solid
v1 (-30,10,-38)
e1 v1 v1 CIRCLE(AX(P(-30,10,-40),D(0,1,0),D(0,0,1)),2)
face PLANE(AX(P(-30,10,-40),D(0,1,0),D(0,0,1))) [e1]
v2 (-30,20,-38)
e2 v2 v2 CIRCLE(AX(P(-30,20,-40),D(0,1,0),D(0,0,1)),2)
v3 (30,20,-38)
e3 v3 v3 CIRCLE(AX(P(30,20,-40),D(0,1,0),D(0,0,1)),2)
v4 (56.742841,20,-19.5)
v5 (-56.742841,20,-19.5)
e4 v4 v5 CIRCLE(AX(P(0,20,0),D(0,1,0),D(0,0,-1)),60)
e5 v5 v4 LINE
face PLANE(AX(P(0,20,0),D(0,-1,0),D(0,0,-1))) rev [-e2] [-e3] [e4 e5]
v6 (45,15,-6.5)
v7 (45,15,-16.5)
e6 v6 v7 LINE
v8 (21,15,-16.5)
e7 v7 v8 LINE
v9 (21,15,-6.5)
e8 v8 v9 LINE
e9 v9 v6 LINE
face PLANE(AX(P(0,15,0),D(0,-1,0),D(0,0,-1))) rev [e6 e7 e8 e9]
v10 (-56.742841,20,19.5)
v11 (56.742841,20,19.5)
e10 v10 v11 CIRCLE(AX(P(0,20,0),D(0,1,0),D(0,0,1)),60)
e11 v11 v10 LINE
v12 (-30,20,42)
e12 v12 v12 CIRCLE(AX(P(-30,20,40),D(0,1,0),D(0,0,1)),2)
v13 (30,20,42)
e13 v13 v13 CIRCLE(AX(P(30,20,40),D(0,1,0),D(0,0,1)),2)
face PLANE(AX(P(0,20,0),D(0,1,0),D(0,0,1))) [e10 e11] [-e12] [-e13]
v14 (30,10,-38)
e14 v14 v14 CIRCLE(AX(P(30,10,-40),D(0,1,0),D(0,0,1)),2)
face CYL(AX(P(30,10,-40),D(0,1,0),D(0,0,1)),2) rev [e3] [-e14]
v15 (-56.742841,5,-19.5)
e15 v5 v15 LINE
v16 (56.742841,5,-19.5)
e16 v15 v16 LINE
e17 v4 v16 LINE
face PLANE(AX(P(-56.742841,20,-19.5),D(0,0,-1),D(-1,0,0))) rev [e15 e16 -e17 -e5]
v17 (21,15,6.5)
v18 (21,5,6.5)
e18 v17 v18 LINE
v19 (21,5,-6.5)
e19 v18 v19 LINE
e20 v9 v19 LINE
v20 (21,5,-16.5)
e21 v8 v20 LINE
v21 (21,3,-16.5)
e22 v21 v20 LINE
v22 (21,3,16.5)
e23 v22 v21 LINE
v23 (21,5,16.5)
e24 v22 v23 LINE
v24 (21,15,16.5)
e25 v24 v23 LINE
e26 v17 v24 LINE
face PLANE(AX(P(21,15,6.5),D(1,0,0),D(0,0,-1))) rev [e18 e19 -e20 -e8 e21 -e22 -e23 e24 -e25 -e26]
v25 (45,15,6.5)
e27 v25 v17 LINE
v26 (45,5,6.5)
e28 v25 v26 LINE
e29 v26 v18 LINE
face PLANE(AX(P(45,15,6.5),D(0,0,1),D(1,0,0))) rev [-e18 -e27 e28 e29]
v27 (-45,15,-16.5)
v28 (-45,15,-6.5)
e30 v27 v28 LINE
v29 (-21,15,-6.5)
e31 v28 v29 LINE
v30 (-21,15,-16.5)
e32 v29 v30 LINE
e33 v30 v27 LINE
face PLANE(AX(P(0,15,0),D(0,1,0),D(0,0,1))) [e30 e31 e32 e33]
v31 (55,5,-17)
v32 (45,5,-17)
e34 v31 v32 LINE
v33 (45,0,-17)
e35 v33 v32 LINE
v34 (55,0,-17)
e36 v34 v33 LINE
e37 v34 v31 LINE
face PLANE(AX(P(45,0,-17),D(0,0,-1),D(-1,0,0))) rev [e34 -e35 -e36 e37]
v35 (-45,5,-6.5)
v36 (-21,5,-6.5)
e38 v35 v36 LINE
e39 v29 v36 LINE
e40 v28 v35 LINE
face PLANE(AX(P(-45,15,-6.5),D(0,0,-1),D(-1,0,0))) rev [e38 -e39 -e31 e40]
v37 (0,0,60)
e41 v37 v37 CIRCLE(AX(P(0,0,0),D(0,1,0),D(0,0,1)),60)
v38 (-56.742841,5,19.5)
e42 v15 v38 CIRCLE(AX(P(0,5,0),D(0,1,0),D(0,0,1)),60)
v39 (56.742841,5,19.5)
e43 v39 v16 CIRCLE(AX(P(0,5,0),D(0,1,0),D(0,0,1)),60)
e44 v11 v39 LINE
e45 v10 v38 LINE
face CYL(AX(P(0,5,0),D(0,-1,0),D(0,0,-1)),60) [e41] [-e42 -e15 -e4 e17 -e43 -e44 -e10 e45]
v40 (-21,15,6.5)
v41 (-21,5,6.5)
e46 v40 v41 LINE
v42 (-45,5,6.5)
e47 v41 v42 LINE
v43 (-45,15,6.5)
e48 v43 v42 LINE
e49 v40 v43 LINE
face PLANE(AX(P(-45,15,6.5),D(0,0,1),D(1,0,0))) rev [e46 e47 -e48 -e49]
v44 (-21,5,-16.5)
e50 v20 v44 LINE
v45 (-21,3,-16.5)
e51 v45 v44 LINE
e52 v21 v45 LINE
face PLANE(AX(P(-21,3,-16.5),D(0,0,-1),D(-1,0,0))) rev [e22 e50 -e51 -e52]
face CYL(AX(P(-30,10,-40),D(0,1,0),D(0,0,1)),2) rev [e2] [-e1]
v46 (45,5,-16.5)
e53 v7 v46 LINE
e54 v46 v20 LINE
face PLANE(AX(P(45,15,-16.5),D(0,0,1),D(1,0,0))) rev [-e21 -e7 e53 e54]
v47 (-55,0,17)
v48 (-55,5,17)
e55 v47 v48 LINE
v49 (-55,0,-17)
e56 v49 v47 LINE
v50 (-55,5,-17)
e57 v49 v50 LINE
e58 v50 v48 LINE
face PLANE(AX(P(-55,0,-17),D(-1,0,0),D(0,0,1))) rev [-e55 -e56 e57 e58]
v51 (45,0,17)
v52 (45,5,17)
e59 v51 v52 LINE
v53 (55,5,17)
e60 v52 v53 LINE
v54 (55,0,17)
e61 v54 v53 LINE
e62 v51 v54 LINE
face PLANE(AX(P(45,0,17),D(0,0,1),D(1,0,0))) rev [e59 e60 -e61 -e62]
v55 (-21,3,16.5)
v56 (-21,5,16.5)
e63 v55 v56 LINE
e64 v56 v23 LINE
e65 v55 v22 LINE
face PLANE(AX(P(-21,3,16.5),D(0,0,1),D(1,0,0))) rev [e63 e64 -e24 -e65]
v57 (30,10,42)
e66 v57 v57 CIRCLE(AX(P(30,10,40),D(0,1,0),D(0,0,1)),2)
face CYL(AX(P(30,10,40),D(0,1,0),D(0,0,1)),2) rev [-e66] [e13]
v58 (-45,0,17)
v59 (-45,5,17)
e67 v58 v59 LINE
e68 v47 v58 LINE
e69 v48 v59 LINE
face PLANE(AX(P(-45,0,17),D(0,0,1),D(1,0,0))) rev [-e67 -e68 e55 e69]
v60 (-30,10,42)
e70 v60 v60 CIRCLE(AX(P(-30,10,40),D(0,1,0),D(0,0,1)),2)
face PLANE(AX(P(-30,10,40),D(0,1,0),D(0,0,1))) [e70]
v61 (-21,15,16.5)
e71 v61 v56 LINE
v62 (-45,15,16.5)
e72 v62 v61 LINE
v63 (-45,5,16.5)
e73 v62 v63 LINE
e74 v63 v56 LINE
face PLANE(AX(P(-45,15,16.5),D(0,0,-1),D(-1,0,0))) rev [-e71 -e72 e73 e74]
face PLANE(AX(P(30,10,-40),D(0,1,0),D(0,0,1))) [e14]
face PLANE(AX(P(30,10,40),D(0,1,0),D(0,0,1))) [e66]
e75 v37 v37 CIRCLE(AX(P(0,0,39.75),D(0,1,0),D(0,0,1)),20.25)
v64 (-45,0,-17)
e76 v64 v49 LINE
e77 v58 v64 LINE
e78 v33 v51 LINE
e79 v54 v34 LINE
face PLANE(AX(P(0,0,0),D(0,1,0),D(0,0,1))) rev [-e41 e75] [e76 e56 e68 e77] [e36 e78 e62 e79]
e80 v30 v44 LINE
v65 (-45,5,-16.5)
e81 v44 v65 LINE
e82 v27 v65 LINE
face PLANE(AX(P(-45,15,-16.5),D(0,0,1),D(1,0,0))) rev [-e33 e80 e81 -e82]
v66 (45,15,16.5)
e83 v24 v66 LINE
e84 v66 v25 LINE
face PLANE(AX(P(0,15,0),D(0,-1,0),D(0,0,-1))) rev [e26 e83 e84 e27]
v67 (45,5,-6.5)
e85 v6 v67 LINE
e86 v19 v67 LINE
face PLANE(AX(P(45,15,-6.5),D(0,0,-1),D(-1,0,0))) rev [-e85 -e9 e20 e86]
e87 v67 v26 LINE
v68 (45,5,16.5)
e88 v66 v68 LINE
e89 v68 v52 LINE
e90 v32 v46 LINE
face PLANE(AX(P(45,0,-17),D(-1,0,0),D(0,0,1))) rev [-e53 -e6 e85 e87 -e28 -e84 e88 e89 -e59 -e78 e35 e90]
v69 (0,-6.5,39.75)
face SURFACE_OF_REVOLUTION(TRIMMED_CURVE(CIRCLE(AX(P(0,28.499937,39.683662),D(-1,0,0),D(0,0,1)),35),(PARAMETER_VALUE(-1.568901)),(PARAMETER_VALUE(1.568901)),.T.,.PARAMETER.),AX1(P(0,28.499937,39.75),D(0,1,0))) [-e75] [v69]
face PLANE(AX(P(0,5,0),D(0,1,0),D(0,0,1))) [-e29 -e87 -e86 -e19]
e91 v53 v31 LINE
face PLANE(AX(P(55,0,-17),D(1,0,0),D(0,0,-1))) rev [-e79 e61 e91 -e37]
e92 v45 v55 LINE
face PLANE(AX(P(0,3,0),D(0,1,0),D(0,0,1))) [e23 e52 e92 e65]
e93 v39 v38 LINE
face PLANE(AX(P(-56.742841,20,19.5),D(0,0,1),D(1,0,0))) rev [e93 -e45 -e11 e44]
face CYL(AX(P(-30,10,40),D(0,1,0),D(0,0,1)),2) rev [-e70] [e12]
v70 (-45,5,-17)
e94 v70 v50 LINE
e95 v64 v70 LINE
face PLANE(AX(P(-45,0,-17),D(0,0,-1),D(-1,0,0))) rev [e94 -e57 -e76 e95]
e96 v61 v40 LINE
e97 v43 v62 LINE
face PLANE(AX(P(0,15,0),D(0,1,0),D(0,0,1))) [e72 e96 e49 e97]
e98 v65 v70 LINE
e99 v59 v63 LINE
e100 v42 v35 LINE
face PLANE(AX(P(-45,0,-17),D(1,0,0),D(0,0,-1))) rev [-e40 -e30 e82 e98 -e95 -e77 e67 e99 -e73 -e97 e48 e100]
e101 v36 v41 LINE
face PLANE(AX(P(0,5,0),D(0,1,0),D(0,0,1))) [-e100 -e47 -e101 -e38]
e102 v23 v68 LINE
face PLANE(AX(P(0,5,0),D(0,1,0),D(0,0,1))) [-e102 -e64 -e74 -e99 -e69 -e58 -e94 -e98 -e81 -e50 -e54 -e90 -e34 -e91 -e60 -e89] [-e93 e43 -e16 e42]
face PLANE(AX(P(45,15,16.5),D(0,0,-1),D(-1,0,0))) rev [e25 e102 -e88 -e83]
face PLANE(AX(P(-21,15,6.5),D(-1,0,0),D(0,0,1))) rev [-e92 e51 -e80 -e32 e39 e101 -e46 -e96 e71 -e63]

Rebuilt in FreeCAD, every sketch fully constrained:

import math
import FreeCAD as App
import Part
import Sketcher

doc = App.newDocument("Part")
body = doc.addObject("PartDesign::Body", "Body")

# Sketch on XZ plane
sketch1 = body.newObject("Sketcher::SketchObject", "Sketch")
sketch1.AttachmentSupport = (doc.getObject("XZ_Plane"), [""])
sketch1.MapMode = "FlatFace"
sketch1.addGeometry(Part.Circle(App.Vector(0, 0, 0), App.Vector(0, 0, 1), 60), False)
sketch1.addConstraint(Sketcher.Constraint("Coincident", 0, 3, -1, 1))
sketch1.addConstraint(Sketcher.Constraint("Diameter", 0, 120.0))
pad1 = body.newObject("PartDesign::Pad", "Pad")
pad1.Profile = sketch1
pad1.Length = 5
pad1.Reversed = True

# Sketch on XZ plane
sketch2 = body.newObject("Sketcher::SketchObject", "Sketch001")
sketch2.AttachmentSupport = (doc.getObject("XZ_Plane"), [""])
sketch2.MapMode = "FlatFace"
sketch2.AttachmentOffset = App.Placement(App.Vector(0, 0, -5), App.Rotation())
sketch2.addGeometry(Part.LineSegment(App.Vector(-55, -17, 0), App.Vector(-55, 17, 0)), False)
sketch2.addGeometry(Part.LineSegment(App.Vector(-55, 17, 0), App.Vector(-45, 17, 0)), False)
sketch2.addGeometry(Part.LineSegment(App.Vector(-45, 17, 0), App.Vector(-45, -17, 0)), False)
sketch2.addGeometry(Part.LineSegment(App.Vector(-45, -17, 0), App.Vector(-55, -17, 0)), False)
sketch2.addGeometry(Part.LineSegment(App.Vector(45, -17, 0), App.Vector(45, 17, 0)), False)
sketch2.addGeometry(Part.LineSegment(App.Vector(45, 17, 0), App.Vector(55, 17, 0)), False)
sketch2.addGeometry(Part.LineSegment(App.Vector(55, 17, 0), App.Vector(55, -17, 0)), False)
sketch2.addGeometry(Part.LineSegment(App.Vector(55, -17, 0), App.Vector(45, -17, 0)), False)
sketch2.addConstraint(Sketcher.Constraint("Coincident", 0, 2, 1, 1))
sketch2.addConstraint(Sketcher.Constraint("Coincident", 1, 2, 2, 1))
sketch2.addConstraint(Sketcher.Constraint("Coincident", 2, 2, 3, 1))
sketch2.addConstraint(Sketcher.Constraint("Coincident", 3, 2, 0, 1))
sketch2.addConstraint(Sketcher.Constraint("Coincident", 4, 2, 5, 1))
sketch2.addConstraint(Sketcher.Constraint("Coincident", 5, 2, 6, 1))
sketch2.addConstraint(Sketcher.Constraint("Coincident", 6, 2, 7, 1))
sketch2.addConstraint(Sketcher.Constraint("Coincident", 7, 2, 4, 1))
sketch2.addConstraint(Sketcher.Constraint("Vertical", 0))
sketch2.addConstraint(Sketcher.Constraint("Horizontal", 1))
sketch2.addConstraint(Sketcher.Constraint("Vertical", 2))
sketch2.addConstraint(Sketcher.Constraint("Horizontal", 3))
sketch2.addConstraint(Sketcher.Constraint("Vertical", 4))
sketch2.addConstraint(Sketcher.Constraint("Horizontal", 5))
sketch2.addConstraint(Sketcher.Constraint("Vertical", 6))
sketch2.addConstraint(Sketcher.Constraint("Horizontal", 7))
sketch2.addConstraint(Sketcher.Constraint("Symmetric", 2, 2, 4, 2, -1, 1))
sketch2.addConstraint(Sketcher.Constraint("Symmetric", 0, 2, 6, 2, -1, 1))
sketch2.addConstraint(Sketcher.Constraint("Horizontal", 1, 2, 4, 2))
sketch2.addConstraint(Sketcher.Constraint("DistanceX", 1, 1, 1, 2, 10.0))
sketch2.addConstraint(Sketcher.Constraint("DistanceY", 0, 1, 0, 2, 34.0))
sketch2.addConstraint(Sketcher.Constraint("DistanceX", 0, 2, -1, 1, 55.0))
pocket1 = body.newObject("PartDesign::Pocket", "Pocket")
pocket1.Profile = sketch2
pocket1.Type = "ThroughAll"
pocket1.Midplane = True

# Sketch on XZ plane
sketch3 = body.newObject("Sketcher::SketchObject", "Sketch002")
sketch3.AttachmentSupport = (doc.getObject("XZ_Plane"), [""])
sketch3.MapMode = "FlatFace"
sketch3.AttachmentOffset = App.Placement(App.Vector(0, 0, -5), App.Rotation())
sketch3.addGeometry(Part.LineSegment(App.Vector(-45, 6.5, 0), App.Vector(-45, 16.5, 0)), False)
sketch3.addGeometry(Part.LineSegment(App.Vector(-45, 16.5, 0), App.Vector(-21, 16.5, 0)), False)
sketch3.addGeometry(Part.LineSegment(App.Vector(-21, 16.5, 0), App.Vector(-21, 6.5, 0)), False)
sketch3.addGeometry(Part.LineSegment(App.Vector(-21, 6.5, 0), App.Vector(-45, 6.5, 0)), False)
sketch3.addGeometry(Part.LineSegment(App.Vector(-45, -16.5, 0), App.Vector(-45, -6.5, 0)), False)
sketch3.addGeometry(Part.LineSegment(App.Vector(-45, -6.5, 0), App.Vector(-21, -6.5, 0)), False)
sketch3.addGeometry(Part.LineSegment(App.Vector(-21, -6.5, 0), App.Vector(-21, -16.5, 0)), False)
sketch3.addGeometry(Part.LineSegment(App.Vector(-21, -16.5, 0), App.Vector(-45, -16.5, 0)), False)
sketch3.addGeometry(Part.LineSegment(App.Vector(21, 6.5, 0), App.Vector(21, 16.5, 0)), False)
sketch3.addGeometry(Part.LineSegment(App.Vector(21, 16.5, 0), App.Vector(45, 16.5, 0)), False)
sketch3.addGeometry(Part.LineSegment(App.Vector(45, 16.5, 0), App.Vector(45, 6.5, 0)), False)
sketch3.addGeometry(Part.LineSegment(App.Vector(45, 6.5, 0), App.Vector(21, 6.5, 0)), False)
sketch3.addGeometry(Part.LineSegment(App.Vector(21, -16.5, 0), App.Vector(21, -6.5, 0)), False)
sketch3.addGeometry(Part.LineSegment(App.Vector(21, -6.5, 0), App.Vector(45, -6.5, 0)), False)
sketch3.addGeometry(Part.LineSegment(App.Vector(45, -6.5, 0), App.Vector(45, -16.5, 0)), False)
sketch3.addGeometry(Part.LineSegment(App.Vector(45, -16.5, 0), App.Vector(21, -16.5, 0)), False)
sketch3.addConstraint(Sketcher.Constraint("Coincident", 0, 2, 1, 1))
sketch3.addConstraint(Sketcher.Constraint("Coincident", 1, 2, 2, 1))
sketch3.addConstraint(Sketcher.Constraint("Coincident", 2, 2, 3, 1))
sketch3.addConstraint(Sketcher.Constraint("Coincident", 3, 2, 0, 1))
sketch3.addConstraint(Sketcher.Constraint("Coincident", 4, 2, 5, 1))
sketch3.addConstraint(Sketcher.Constraint("Coincident", 5, 2, 6, 1))
sketch3.addConstraint(Sketcher.Constraint("Coincident", 6, 2, 7, 1))
sketch3.addConstraint(Sketcher.Constraint("Coincident", 7, 2, 4, 1))
sketch3.addConstraint(Sketcher.Constraint("Coincident", 8, 2, 9, 1))
sketch3.addConstraint(Sketcher.Constraint("Coincident", 9, 2, 10, 1))
sketch3.addConstraint(Sketcher.Constraint("Coincident", 10, 2, 11, 1))
sketch3.addConstraint(Sketcher.Constraint("Coincident", 11, 2, 8, 1))
sketch3.addConstraint(Sketcher.Constraint("Coincident", 12, 2, 13, 1))
sketch3.addConstraint(Sketcher.Constraint("Coincident", 13, 2, 14, 1))
sketch3.addConstraint(Sketcher.Constraint("Coincident", 14, 2, 15, 1))
sketch3.addConstraint(Sketcher.Constraint("Coincident", 15, 2, 12, 1))
sketch3.addConstraint(Sketcher.Constraint("Vertical", 0))
sketch3.addConstraint(Sketcher.Constraint("Horizontal", 1))
sketch3.addConstraint(Sketcher.Constraint("Vertical", 2))
sketch3.addConstraint(Sketcher.Constraint("Horizontal", 3))
sketch3.addConstraint(Sketcher.Constraint("Vertical", 4))
sketch3.addConstraint(Sketcher.Constraint("Horizontal", 5))
sketch3.addConstraint(Sketcher.Constraint("Vertical", 6))
sketch3.addConstraint(Sketcher.Constraint("Horizontal", 7))
sketch3.addConstraint(Sketcher.Constraint("Vertical", 8))
sketch3.addConstraint(Sketcher.Constraint("Horizontal", 9))
sketch3.addConstraint(Sketcher.Constraint("Vertical", 10))
sketch3.addConstraint(Sketcher.Constraint("Horizontal", 11))
sketch3.addConstraint(Sketcher.Constraint("Vertical", 12))
sketch3.addConstraint(Sketcher.Constraint("Horizontal", 13))
sketch3.addConstraint(Sketcher.Constraint("Vertical", 14))
sketch3.addConstraint(Sketcher.Constraint("Horizontal", 15))
sketch3.addConstraint(Sketcher.Constraint("Symmetric", 6, 2, 8, 2, -1, 1))
sketch3.addConstraint(Sketcher.Constraint("Symmetric", 4, 2, 10, 2, -1, 1))
sketch3.addConstraint(Sketcher.Constraint("Symmetric", 2, 2, 12, 2, -1, 1))
sketch3.addConstraint(Sketcher.Constraint("Symmetric", 0, 2, 14, 2, -1, 1))
sketch3.addConstraint(Sketcher.Constraint("Symmetric", 1, 2, 8, 2, -2))
sketch3.addConstraint(Sketcher.Constraint("Symmetric", 3, 2, 10, 2, -2))
sketch3.addConstraint(Sketcher.Constraint("DistanceX", 1, 1, 1, 2, 24.0))
sketch3.addConstraint(Sketcher.Constraint("DistanceY", 0, 1, 0, 2, 10.0))
sketch3.addConstraint(Sketcher.Constraint("DistanceX", 0, 2, -1, 1, 45.0))
sketch3.addConstraint(Sketcher.Constraint("DistanceY", 4, 2, 3, 2, 13.0))
pad2 = body.newObject("PartDesign::Pad", "Pad001")
pad2.Profile = sketch3
pad2.Length = 10
pad2.Reversed = True

# Sketch on XZ plane
sketch4 = body.newObject("Sketcher::SketchObject", "Sketch003")
sketch4.AttachmentSupport = (doc.getObject("XZ_Plane"), [""])
sketch4.MapMode = "FlatFace"
sketch4.AttachmentOffset = App.Placement(App.Vector(0, 0, -5), App.Rotation())
sketch4.addGeometry(Part.LineSegment(App.Vector(-21, -16.5, 0), App.Vector(-21, 16.5, 0)), False)
sketch4.addGeometry(Part.LineSegment(App.Vector(-21, 16.5, 0), App.Vector(21, 16.5, 0)), False)
sketch4.addGeometry(Part.LineSegment(App.Vector(21, 16.5, 0), App.Vector(21, -16.5, 0)), False)
sketch4.addGeometry(Part.LineSegment(App.Vector(21, -16.5, 0), App.Vector(-21, -16.5, 0)), False)
sketch4.addConstraint(Sketcher.Constraint("Coincident", 0, 2, 1, 1))
sketch4.addConstraint(Sketcher.Constraint("Coincident", 1, 2, 2, 1))
sketch4.addConstraint(Sketcher.Constraint("Coincident", 2, 2, 3, 1))
sketch4.addConstraint(Sketcher.Constraint("Coincident", 3, 2, 0, 1))
sketch4.addConstraint(Sketcher.Constraint("Vertical", 0))
sketch4.addConstraint(Sketcher.Constraint("Horizontal", 1))
sketch4.addConstraint(Sketcher.Constraint("Vertical", 2))
sketch4.addConstraint(Sketcher.Constraint("Horizontal", 3))
sketch4.addConstraint(Sketcher.Constraint("Symmetric", 0, 2, 2, 2, -1, 1))
sketch4.addConstraint(Sketcher.Constraint("DistanceX", 1, 1, 1, 2, 42.0))
sketch4.addConstraint(Sketcher.Constraint("DistanceY", 0, 1, 0, 2, 33.0))
pocket2 = body.newObject("PartDesign::Pocket", "Pocket001")
pocket2.Profile = sketch4
pocket2.Length = 2
pocket2.Reversed = True

# Sketch on XZ plane
sketch5 = body.newObject("Sketcher::SketchObject", "Sketch004")
sketch5.AttachmentSupport = (doc.getObject("XZ_Plane"), [""])
sketch5.MapMode = "FlatFace"
sketch5.AttachmentOffset = App.Placement(App.Vector(0, 0, -5), App.Rotation())
sketch5.addGeometry(Part.LineSegment(App.Vector(-56.742841, -19.5, 0), App.Vector(56.742841, -19.5, 0)), False)
sketch5.addGeometry(Part.ArcOfCircle(Part.Circle(App.Vector(0, 0, 0), App.Vector(0, 0, 1), 60), math.radians(-161.034425), math.radians(-18.965575)), False)
sketch5.addGeometry(Part.LineSegment(App.Vector(56.742841, 19.5, 0), App.Vector(-56.742841, 19.5, 0)), False)
sketch5.addGeometry(Part.ArcOfCircle(Part.Circle(App.Vector(0, 0, 0), App.Vector(0, 0, 1), 60), math.radians(18.965575), math.radians(161.034425)), False)
sketch5.addConstraint(Sketcher.Constraint("Coincident", 0, 1, 1, 1))
sketch5.addConstraint(Sketcher.Constraint("Coincident", 1, 2, 0, 2))
sketch5.addConstraint(Sketcher.Constraint("Coincident", 2, 1, 3, 1))
sketch5.addConstraint(Sketcher.Constraint("Coincident", 3, 2, 2, 2))
sketch5.addConstraint(Sketcher.Constraint("Horizontal", 0))
sketch5.addConstraint(Sketcher.Constraint("Horizontal", 2))
sketch5.addConstraint(Sketcher.Constraint("Coincident", 1, 3, -1, 1))
sketch5.addConstraint(Sketcher.Constraint("Coincident", 3, 3, -1, 1))
sketch5.addConstraint(Sketcher.Constraint("Equal", 1, 3))
sketch5.addConstraint(Sketcher.Constraint("Vertical", 1, 2, 2, 1))
sketch5.addConstraint(Sketcher.Constraint("Radius", 1, 60.0))
sketch5.addConstraint(Sketcher.Constraint("DistanceY", 1, 2, 2, 1, 39.0))
pad3 = body.newObject("PartDesign::Pad", "Pad002")
pad3.Profile = sketch5
pad3.Length = 15
pad3.Reversed = True

# Sketch on XZ plane
sketch6 = body.newObject("Sketcher::SketchObject", "Sketch005")
sketch6.AttachmentSupport = (doc.getObject("XZ_Plane"), [""])
sketch6.MapMode = "FlatFace"
sketch6.AttachmentOffset = App.Placement(App.Vector(0, 0, -20), App.Rotation())
sketch6.addGeometry(Part.Circle(App.Vector(30, 40, 0), App.Vector(0, 0, 1), 2), False)
sketch6.addGeometry(Part.Circle(App.Vector(-30, 40, 0), App.Vector(0, 0, 1), 2), False)
sketch6.addGeometry(Part.Circle(App.Vector(30, -40, 0), App.Vector(0, 0, 1), 2), False)
sketch6.addGeometry(Part.Circle(App.Vector(-30, -40, 0), App.Vector(0, 0, 1), 2), False)
sketch6.addConstraint(Sketcher.Constraint("Equal", 0, 1))
sketch6.addConstraint(Sketcher.Constraint("Equal", 1, 2))
sketch6.addConstraint(Sketcher.Constraint("Equal", 2, 3))
sketch6.addConstraint(Sketcher.Constraint("Symmetric", 1, 3, 2, 3, -1, 1))
sketch6.addConstraint(Sketcher.Constraint("Symmetric", 0, 3, 3, 3, -1, 1))
sketch6.addConstraint(Sketcher.Constraint("Symmetric", 0, 3, 1, 3, -2))
sketch6.addConstraint(Sketcher.Constraint("Diameter", 0, 4.0))
sketch6.addConstraint(Sketcher.Constraint("DistanceX", -1, 1, 0, 3, 30.0))
sketch6.addConstraint(Sketcher.Constraint("DistanceY", -1, 1, 0, 3, 40.0))
pocket3 = body.newObject("PartDesign::Pocket", "Pocket002")
pocket3.Profile = sketch6
pocket3.Length = 10
pocket3.Reversed = True

# Sketch on YZ plane
sketch7 = body.newObject("Sketcher::SketchObject", "Sketch006")
sketch7.AttachmentSupport = (doc.getObject("YZ_Plane"), [""])
sketch7.MapMode = "FlatFace"
sketch7.addGeometry(Part.LineSegment(App.Vector(0, 39.75, 0), App.Vector(-6.5, 39.75, 0)), False)
sketch7.addGeometry(Part.ArcOfCircle(Part.Circle(App.Vector(28.499937, 39.816338, 0), App.Vector(0, 0, 1), 35), math.radians(-179.891403), math.radians(-144.516619)), False)
sketch7.addGeometry(Part.LineSegment(App.Vector(0, 19.5, 0), App.Vector(0, 39.75, 0)), False)
sketch7.addGeometry(Part.LineSegment(App.Vector(28.499937, 39.75, 0), App.Vector(-6.5, 39.75, 0)), True)  # axis
sketch7.addConstraint(Sketcher.Constraint("Coincident", 0, 2, 1, 1))
sketch7.addConstraint(Sketcher.Constraint("Coincident", 1, 2, 2, 1))
sketch7.addConstraint(Sketcher.Constraint("Coincident", 2, 2, 0, 1))
sketch7.addConstraint(Sketcher.Constraint("Horizontal", 0))
sketch7.addConstraint(Sketcher.Constraint("Vertical", 2))
sketch7.addConstraint(Sketcher.Constraint("Horizontal", 3))
sketch7.addConstraint(Sketcher.Constraint("Coincident", 3, 2, 0, 2))
sketch7.addConstraint(Sketcher.Constraint("PointOnObject", 1, 2, -2))
sketch7.addConstraint(Sketcher.Constraint("Vertical", 1, 3, 3, 1))
sketch7.addConstraint(Sketcher.Constraint("Radius", 1, 35.0))
sketch7.addConstraint(Sketcher.Constraint("DistanceX", 0, 2, 0, 1, 6.5))
sketch7.addConstraint(Sketcher.Constraint("DistanceY", 2, 1, 2, 2, 20.25))
sketch7.addConstraint(Sketcher.Constraint("DistanceY", -1, 1, 1, 2, 19.5))
revolution = body.newObject("PartDesign::Revolution", "Revolution")
revolution.Profile = sketch7
revolution.ReferenceAxis = (sketch7, ["Axis0"])
revolution.Angle = 360

doc.recompute()
